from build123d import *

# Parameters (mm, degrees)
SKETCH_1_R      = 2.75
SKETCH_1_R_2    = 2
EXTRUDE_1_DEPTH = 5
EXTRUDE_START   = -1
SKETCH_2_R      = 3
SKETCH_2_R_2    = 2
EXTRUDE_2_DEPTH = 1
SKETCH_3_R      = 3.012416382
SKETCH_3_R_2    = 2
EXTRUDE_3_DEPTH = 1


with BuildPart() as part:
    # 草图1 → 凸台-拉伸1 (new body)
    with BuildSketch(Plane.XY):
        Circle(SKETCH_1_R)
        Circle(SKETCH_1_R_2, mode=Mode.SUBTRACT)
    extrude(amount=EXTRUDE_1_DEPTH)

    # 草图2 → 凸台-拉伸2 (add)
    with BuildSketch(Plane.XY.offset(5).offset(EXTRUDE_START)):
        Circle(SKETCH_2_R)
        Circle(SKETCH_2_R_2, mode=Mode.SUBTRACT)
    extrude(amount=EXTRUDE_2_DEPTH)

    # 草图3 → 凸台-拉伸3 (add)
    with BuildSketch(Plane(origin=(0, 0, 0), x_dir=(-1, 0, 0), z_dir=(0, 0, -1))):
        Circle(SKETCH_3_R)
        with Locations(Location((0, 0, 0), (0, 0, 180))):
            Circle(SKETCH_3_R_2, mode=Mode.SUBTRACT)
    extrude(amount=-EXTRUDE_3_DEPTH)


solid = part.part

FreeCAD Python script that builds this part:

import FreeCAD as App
import Part
import Sketcher

V = App.Vector
Q = App.Units.Quantity

doc = App.newDocument("Part")
body = doc.addObject("PartDesign::Body", "Body")

# Sketch on XY plane
sketch1 = body.newObject("Sketcher::SketchObject", "Sketch")
sketch1.AttachmentSupport = (doc.getObject("XY_Plane"), [""])
sketch1.MapMode = "FlatFace"
sketch1.addGeometry([
    Part.Circle(V(0, 0, 0), V(0, 0, 1), 2.75),
    Part.Circle(V(0, 0, 0), V(0, 0, 1), 2),
], False)
sketch1.addConstraint([
    Sketcher.Constraint("Coincident", 0, 3, -1, 1),
    Sketcher.Constraint("Coincident", 1, 3, -1, 1),
    Sketcher.Constraint("Diameter", 1, Q("4 mm")),
    Sketcher.Constraint("Diameter", 0, Q("5.5 mm")),
])
pad1 = body.newObject("PartDesign::Pad", "Pad")
pad1.Profile = sketch1
pad1.Length = 5

# Sketch on XY plane
sketch2 = body.newObject("Sketcher::SketchObject", "Sketch001")
sketch2.AttachmentSupport = (doc.getObject("XY_Plane"), [""])
sketch2.MapMode = "FlatFace"
sketch2.AttachmentOffset = App.Placement(V(0, 0, 4), App.Rotation())
sketch2.addGeometry([
    Part.Circle(V(0, 0, 0), V(0, 0, 1), 3),
    Part.Circle(V(0, 0, 0), V(0, 0, 1), 2),
], False)
sketch2.addConstraint([
    Sketcher.Constraint("Coincident", 0, 3, -1, 1),
    Sketcher.Constraint("Coincident", 1, 3, -1, 1),
    Sketcher.Constraint("Diameter", 0, Q("6 mm")),
    Sketcher.Constraint("Diameter", 1, Q("4 mm")),
])
pad2 = body.newObject("PartDesign::Pad", "Pad001")
pad2.Profile = sketch2
pad2.Length = 1

# Sketch on XY plane
sketch3 = body.newObject("Sketcher::SketchObject", "Sketch002")
sketch3.AttachmentSupport = (doc.getObject("XY_Plane"), [""])
sketch3.MapMode = "FlatFace"
sketch3.addGeometry([
    Part.Circle(V(0, 0, 0), V(0, 0, 1), 3.012416),
    Part.Circle(V(0, 0, 0), V(0, 0, 1), 2),
], False)
sketch3.addConstraint([
    Sketcher.Constraint("Coincident", 0, 3, -1, 1),
    Sketcher.Constraint("Coincident", 1, 3, -1, 1),
    Sketcher.Constraint("Diameter", 1, Q("4 mm")),
    Sketcher.Constraint("Diameter", 0, Q("6.024833 mm")),
])
pad3 = body.newObject("PartDesign::Pad", "Pad002")
pad3.Profile = sketch3
pad3.Length = 1

doc.recompute()
